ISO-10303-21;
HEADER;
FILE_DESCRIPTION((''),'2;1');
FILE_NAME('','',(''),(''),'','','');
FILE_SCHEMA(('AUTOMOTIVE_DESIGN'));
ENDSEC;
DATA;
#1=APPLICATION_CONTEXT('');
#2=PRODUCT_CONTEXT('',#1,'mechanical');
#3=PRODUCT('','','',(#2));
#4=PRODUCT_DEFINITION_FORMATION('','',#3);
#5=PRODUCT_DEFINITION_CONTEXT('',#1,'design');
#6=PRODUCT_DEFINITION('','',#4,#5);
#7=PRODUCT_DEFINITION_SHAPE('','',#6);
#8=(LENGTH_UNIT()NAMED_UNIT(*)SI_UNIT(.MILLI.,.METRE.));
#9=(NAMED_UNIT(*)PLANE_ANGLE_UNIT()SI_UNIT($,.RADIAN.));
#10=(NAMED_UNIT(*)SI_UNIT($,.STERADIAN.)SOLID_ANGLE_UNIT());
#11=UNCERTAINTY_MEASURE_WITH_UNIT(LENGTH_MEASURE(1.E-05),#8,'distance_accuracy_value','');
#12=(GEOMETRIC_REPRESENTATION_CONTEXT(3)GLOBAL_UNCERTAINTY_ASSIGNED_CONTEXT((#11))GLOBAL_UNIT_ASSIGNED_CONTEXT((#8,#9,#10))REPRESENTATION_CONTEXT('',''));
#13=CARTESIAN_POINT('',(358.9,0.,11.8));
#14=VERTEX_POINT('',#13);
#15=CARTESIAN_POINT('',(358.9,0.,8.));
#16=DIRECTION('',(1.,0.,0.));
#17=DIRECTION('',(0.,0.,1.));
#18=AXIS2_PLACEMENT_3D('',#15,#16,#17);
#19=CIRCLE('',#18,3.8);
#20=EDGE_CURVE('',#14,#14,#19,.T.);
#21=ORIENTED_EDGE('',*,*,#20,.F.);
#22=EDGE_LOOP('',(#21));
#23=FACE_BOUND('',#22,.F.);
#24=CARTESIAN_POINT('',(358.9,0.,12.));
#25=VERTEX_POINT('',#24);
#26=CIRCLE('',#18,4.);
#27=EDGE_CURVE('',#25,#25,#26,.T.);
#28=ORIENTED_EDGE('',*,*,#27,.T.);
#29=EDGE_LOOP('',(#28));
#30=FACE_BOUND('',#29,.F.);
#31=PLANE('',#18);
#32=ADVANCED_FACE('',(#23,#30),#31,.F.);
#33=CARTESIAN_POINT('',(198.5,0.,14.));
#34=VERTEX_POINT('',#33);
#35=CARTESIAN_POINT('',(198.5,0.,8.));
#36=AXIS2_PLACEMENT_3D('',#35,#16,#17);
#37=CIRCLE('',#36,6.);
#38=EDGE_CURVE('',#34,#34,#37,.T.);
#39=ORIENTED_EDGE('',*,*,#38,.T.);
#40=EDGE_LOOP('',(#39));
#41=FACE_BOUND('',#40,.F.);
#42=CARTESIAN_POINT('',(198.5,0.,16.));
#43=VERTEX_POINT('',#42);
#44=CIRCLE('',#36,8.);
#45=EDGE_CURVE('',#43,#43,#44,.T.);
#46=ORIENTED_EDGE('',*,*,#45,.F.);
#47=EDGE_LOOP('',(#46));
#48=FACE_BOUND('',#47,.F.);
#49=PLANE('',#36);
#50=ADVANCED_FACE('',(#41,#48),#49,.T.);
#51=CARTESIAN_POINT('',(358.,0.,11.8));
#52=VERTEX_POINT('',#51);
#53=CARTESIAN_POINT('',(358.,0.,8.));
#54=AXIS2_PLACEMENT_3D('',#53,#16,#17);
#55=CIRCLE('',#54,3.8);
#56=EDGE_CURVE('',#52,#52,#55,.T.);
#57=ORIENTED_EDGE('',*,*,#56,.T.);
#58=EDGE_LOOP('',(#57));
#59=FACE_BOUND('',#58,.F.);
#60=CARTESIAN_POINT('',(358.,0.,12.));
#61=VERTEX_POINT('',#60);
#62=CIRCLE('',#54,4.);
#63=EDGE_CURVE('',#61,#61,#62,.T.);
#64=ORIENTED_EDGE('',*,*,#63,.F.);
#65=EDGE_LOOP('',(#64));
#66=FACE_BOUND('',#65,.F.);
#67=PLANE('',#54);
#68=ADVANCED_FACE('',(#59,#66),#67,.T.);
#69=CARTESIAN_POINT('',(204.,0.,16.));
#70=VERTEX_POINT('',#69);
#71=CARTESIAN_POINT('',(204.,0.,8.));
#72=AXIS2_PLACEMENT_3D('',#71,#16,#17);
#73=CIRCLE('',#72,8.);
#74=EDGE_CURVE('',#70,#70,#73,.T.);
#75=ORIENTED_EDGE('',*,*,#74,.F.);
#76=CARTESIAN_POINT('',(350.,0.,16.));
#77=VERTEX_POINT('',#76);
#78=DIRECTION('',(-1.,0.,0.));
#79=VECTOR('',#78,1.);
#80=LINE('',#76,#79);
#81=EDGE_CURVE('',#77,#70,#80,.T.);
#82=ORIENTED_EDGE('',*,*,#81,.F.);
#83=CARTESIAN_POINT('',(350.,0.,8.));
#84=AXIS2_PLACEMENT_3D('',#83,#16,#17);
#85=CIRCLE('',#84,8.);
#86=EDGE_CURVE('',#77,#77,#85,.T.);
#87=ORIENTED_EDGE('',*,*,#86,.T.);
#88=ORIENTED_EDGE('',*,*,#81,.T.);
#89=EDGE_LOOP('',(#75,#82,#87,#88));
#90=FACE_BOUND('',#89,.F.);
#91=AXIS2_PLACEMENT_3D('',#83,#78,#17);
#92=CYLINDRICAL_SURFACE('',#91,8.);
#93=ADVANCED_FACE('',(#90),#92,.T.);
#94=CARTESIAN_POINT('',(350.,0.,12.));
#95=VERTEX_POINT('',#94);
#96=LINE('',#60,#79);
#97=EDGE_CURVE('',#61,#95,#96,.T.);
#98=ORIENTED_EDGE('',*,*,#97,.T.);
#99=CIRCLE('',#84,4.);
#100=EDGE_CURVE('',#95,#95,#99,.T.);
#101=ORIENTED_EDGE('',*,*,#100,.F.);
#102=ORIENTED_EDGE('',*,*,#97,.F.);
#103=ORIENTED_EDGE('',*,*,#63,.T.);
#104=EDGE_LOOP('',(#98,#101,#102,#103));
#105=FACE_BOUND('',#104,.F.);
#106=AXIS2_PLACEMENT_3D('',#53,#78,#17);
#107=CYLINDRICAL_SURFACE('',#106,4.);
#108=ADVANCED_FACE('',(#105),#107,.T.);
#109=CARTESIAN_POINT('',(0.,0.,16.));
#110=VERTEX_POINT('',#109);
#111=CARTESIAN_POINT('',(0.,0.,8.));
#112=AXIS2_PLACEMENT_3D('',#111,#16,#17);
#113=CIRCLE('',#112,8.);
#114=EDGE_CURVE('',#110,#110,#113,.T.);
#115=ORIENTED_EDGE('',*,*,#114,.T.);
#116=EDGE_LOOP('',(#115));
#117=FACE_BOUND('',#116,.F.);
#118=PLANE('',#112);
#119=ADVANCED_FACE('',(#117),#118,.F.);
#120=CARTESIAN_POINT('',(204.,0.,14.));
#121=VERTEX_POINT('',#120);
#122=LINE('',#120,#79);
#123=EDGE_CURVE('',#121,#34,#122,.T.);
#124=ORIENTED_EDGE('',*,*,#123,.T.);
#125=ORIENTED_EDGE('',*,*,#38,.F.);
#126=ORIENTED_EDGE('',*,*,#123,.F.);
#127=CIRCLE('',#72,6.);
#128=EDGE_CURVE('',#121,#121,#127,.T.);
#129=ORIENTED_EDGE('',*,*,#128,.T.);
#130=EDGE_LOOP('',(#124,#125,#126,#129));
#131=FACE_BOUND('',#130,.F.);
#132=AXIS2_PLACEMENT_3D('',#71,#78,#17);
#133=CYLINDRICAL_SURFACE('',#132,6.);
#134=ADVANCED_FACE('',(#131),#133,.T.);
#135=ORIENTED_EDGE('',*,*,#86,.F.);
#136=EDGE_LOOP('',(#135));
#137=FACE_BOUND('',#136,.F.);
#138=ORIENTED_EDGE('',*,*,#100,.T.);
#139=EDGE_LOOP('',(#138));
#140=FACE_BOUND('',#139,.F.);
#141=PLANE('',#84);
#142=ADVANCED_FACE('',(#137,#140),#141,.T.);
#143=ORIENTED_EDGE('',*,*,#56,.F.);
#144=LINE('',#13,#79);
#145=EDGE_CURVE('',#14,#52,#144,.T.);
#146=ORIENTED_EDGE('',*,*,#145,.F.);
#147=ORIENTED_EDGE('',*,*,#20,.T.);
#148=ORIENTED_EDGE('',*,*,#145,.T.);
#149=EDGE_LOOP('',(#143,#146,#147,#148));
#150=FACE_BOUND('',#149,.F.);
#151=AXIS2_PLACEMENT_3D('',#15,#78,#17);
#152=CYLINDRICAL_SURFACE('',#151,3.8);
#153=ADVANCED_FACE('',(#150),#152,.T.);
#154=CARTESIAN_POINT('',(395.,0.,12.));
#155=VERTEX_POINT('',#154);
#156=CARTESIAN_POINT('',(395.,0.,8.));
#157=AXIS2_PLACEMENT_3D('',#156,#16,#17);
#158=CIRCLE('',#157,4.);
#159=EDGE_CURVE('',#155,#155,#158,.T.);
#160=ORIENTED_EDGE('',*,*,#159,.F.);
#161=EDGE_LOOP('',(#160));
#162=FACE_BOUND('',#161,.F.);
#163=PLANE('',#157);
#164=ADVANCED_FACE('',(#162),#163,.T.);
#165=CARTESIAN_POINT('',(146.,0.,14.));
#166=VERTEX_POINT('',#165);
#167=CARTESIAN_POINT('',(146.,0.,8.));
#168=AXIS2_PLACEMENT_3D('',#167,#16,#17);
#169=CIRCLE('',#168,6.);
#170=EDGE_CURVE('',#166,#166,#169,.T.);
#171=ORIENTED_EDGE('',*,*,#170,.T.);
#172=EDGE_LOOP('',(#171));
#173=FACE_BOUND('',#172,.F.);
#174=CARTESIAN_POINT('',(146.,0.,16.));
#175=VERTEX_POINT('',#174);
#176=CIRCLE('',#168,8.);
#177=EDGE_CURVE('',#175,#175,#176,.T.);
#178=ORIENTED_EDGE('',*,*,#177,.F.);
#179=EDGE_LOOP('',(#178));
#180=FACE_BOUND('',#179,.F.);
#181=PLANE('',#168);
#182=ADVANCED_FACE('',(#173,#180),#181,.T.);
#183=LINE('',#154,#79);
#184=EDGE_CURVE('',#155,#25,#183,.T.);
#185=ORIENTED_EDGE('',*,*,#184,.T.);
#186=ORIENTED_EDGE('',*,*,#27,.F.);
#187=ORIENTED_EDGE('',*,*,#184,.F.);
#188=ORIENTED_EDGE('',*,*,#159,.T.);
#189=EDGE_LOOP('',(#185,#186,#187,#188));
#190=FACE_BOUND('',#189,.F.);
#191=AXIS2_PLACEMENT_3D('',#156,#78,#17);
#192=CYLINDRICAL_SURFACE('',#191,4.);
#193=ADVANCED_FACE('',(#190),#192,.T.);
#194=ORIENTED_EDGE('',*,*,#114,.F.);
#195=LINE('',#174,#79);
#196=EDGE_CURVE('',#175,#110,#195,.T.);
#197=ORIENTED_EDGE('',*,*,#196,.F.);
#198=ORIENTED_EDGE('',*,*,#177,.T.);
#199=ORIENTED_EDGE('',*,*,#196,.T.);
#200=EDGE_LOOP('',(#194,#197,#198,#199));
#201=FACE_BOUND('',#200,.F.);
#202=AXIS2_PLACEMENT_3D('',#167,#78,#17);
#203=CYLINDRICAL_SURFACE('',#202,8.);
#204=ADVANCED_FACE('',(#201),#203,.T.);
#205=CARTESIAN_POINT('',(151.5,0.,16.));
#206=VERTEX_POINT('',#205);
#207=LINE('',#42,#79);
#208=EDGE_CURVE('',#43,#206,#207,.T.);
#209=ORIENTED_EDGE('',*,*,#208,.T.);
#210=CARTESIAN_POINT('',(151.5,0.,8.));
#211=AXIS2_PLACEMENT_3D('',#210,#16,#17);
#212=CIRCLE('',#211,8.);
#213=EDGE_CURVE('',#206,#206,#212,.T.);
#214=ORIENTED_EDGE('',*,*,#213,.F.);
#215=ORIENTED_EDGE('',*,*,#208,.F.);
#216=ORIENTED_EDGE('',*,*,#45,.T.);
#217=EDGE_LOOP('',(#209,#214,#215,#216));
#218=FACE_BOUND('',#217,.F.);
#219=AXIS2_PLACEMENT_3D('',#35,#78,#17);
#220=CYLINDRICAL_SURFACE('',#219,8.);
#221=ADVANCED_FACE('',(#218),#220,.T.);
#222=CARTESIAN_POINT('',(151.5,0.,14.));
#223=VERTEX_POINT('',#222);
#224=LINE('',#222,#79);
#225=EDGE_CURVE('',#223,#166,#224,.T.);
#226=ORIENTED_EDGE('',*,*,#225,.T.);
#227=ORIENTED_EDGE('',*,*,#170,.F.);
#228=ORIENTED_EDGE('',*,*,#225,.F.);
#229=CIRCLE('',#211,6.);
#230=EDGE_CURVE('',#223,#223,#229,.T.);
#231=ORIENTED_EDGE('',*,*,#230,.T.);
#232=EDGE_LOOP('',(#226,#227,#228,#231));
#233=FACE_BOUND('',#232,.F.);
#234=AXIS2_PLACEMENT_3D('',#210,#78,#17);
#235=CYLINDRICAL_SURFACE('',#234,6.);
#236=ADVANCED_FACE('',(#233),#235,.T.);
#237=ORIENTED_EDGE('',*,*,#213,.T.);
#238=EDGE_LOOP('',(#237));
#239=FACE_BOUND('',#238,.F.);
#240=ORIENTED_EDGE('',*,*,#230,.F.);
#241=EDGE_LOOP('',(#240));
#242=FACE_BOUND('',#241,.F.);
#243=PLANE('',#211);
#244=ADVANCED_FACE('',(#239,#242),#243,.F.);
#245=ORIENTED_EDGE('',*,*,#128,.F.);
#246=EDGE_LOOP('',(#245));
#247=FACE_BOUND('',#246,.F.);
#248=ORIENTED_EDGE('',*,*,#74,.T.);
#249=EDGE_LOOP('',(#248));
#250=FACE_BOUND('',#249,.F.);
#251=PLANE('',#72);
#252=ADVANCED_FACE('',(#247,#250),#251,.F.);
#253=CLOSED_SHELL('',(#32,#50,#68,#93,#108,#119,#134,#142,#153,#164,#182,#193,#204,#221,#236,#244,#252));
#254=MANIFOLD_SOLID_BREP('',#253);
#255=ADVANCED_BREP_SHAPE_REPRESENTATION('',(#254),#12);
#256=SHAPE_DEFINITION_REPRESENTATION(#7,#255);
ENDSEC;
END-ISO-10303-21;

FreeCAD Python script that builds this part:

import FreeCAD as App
import Part
import Sketcher

V = App.Vector
Q = App.Units.Quantity

doc = App.newDocument("Part")
body = doc.addObject("PartDesign::Body", "Body")

# Sketch on XZ plane
sketch1 = body.newObject("Sketcher::SketchObject", "Sketch")
sketch1.AttachmentSupport = (doc.getObject("XZ_Plane"), [""])
sketch1.MapMode = "FlatFace"
sketch1.addGeometry([
    Part.LineSegment(V(146, 16, 0), V(0, 16, 0)),  # 0
    Part.LineSegment(V(0, 16, 0), V(0, 8, 0)),  # 1
    Part.LineSegment(V(0, 8, 0), V(395, 8, 0)),  # 2
    Part.LineSegment(V(395, 8, 0), V(395, 12, 0)),  # 3
    Part.LineSegment(V(395, 12, 0), V(358.9, 12, 0)),  # 4
    Part.LineSegment(V(358.9, 12, 0), V(358.9, 11.8, 0)),  # 5
    Part.LineSegment(V(358.9, 11.8, 0), V(358, 11.8, 0)),  # 6
    Part.LineSegment(V(358, 11.8, 0), V(358, 12, 0)),  # 7
    Part.LineSegment(V(358, 12, 0), V(350, 12, 0)),  # 8
    Part.LineSegment(V(350, 12, 0), V(350, 16, 0)),  # 9
    Part.LineSegment(V(350, 16, 0), V(204, 16, 0)),  # 10
    Part.LineSegment(V(204, 16, 0), V(204, 14, 0)),  # 11
    Part.LineSegment(V(204, 14, 0), V(198.5, 14, 0)),  # 12
    Part.LineSegment(V(198.5, 14, 0), V(198.5, 16, 0)),  # 13
    Part.LineSegment(V(198.5, 16, 0), V(151.5, 16, 0)),  # 14
    Part.LineSegment(V(151.5, 16, 0), V(151.5, 14, 0)),  # 15
    Part.LineSegment(V(151.5, 14, 0), V(146, 14, 0)),  # 16
    Part.LineSegment(V(146, 14, 0), V(146, 16, 0)),  # 17
], False)
sketch1.addGeometry(Part.LineSegment(V(0, 8, 0), V(395, 8, 0)), True)  # axis
sketch1.addConstraint([
    Sketcher.Constraint("Coincident", 0, 2, 1, 1),
    Sketcher.Constraint("Coincident", 1, 2, 2, 1),
    Sketcher.Constraint("Coincident", 2, 2, 3, 1),
    Sketcher.Constraint("Coincident", 3, 2, 4, 1),
    Sketcher.Constraint("Coincident", 4, 2, 5, 1),
    Sketcher.Constraint("Coincident", 5, 2, 6, 1),
    Sketcher.Constraint("Coincident", 6, 2, 7, 1),
    Sketcher.Constraint("Coincident", 7, 2, 8, 1),
    Sketcher.Constraint("Coincident", 8, 2, 9, 1),
    Sketcher.Constraint("Coincident", 9, 2, 10, 1),
    Sketcher.Constraint("Coincident", 10, 2, 11, 1),
    Sketcher.Constraint("Coincident", 11, 2, 12, 1),
    Sketcher.Constraint("Coincident", 12, 2, 13, 1),
    Sketcher.Constraint("Coincident", 13, 2, 14, 1),
    Sketcher.Constraint("Coincident", 14, 2, 15, 1),
    Sketcher.Constraint("Coincident", 15, 2, 16, 1),
    Sketcher.Constraint("Coincident", 16, 2, 17, 1),
    Sketcher.Constraint("Coincident", 17, 2, 0, 1),
    Sketcher.Constraint("Horizontal", 0),
    Sketcher.Constraint("Vertical", 1),
    Sketcher.Constraint("Horizontal", 2),
    Sketcher.Constraint("Vertical", 3),
    Sketcher.Constraint("Horizontal", 4),
    Sketcher.Constraint("Vertical", 5),
    Sketcher.Constraint("Horizontal", 6),
    Sketcher.Constraint("Vertical", 7),
    Sketcher.Constraint("Horizontal", 8),
    Sketcher.Constraint("Vertical", 9),
    Sketcher.Constraint("Horizontal", 10),
    Sketcher.Constraint("Vertical", 11),
    Sketcher.Constraint("Horizontal", 12),
    Sketcher.Constraint("Vertical", 13),
    Sketcher.Constraint("Horizontal", 14),
    Sketcher.Constraint("Vertical", 15),
    Sketcher.Constraint("Horizontal", 16),
    Sketcher.Constraint("Vertical", 17),
    Sketcher.Constraint("Horizontal", 18),
    Sketcher.Constraint("Coincident", 18, 1, 1, 2),
    Sketcher.Constraint("PointOnObject", 0, 2, -2),
    Sketcher.Constraint("Horizontal", 4, 2, 7, 2),
    Sketcher.Constraint("Horizontal", 0, 2, 9, 2),
    Sketcher.Constraint("Horizontal", 10, 2, 13, 2),
    Sketcher.Constraint("Horizontal", 12, 2, 15, 2),
    Sketcher.Constraint("Vertical", 3, 2, 18, 2),
    Sketcher.Constraint("Equal", 0, 10),
    Sketcher.Constraint("Equal", 12, 16),
    Sketcher.Constraint("Equal", 8, 1),
    Sketcher.Constraint("Equal", 3, 9),
    Sketcher.Constraint("DistanceX", 0, 2, 0, 1, Q("146 mm")),
    Sketcher.Constraint("DistanceX", 2, 1, 2, 2, Q("395 mm")),
    Sketcher.Constraint("DistanceX", 8, 2, 8, 1, Q("8 mm")),
    Sketcher.Constraint("DistanceX", 14, 2, 14, 1, Q("47 mm")),
    Sketcher.Constraint("DistanceY", 11, 2, 11, 1, Q("2 mm")),
    Sketcher.Constraint("DistanceX", 4, 2, 4, 1, Q("36.1 mm")),
    Sketcher.Constraint("DistanceX", 6, 2, 6, 1, Q("0.9 mm")),
    Sketcher.Constraint("DistanceY", 5, 2, 5, 1, Q("0.2 mm")),
    Sketcher.Constraint("DistanceY", -1, 1, 0, 2, Q("16 mm")),
])
revolution = body.newObject("PartDesign::Revolution", "Revolution")
revolution.Profile = sketch1
revolution.ReferenceAxis = (sketch1, ["Axis0"])
revolution.Angle = 360

doc.recompute()
